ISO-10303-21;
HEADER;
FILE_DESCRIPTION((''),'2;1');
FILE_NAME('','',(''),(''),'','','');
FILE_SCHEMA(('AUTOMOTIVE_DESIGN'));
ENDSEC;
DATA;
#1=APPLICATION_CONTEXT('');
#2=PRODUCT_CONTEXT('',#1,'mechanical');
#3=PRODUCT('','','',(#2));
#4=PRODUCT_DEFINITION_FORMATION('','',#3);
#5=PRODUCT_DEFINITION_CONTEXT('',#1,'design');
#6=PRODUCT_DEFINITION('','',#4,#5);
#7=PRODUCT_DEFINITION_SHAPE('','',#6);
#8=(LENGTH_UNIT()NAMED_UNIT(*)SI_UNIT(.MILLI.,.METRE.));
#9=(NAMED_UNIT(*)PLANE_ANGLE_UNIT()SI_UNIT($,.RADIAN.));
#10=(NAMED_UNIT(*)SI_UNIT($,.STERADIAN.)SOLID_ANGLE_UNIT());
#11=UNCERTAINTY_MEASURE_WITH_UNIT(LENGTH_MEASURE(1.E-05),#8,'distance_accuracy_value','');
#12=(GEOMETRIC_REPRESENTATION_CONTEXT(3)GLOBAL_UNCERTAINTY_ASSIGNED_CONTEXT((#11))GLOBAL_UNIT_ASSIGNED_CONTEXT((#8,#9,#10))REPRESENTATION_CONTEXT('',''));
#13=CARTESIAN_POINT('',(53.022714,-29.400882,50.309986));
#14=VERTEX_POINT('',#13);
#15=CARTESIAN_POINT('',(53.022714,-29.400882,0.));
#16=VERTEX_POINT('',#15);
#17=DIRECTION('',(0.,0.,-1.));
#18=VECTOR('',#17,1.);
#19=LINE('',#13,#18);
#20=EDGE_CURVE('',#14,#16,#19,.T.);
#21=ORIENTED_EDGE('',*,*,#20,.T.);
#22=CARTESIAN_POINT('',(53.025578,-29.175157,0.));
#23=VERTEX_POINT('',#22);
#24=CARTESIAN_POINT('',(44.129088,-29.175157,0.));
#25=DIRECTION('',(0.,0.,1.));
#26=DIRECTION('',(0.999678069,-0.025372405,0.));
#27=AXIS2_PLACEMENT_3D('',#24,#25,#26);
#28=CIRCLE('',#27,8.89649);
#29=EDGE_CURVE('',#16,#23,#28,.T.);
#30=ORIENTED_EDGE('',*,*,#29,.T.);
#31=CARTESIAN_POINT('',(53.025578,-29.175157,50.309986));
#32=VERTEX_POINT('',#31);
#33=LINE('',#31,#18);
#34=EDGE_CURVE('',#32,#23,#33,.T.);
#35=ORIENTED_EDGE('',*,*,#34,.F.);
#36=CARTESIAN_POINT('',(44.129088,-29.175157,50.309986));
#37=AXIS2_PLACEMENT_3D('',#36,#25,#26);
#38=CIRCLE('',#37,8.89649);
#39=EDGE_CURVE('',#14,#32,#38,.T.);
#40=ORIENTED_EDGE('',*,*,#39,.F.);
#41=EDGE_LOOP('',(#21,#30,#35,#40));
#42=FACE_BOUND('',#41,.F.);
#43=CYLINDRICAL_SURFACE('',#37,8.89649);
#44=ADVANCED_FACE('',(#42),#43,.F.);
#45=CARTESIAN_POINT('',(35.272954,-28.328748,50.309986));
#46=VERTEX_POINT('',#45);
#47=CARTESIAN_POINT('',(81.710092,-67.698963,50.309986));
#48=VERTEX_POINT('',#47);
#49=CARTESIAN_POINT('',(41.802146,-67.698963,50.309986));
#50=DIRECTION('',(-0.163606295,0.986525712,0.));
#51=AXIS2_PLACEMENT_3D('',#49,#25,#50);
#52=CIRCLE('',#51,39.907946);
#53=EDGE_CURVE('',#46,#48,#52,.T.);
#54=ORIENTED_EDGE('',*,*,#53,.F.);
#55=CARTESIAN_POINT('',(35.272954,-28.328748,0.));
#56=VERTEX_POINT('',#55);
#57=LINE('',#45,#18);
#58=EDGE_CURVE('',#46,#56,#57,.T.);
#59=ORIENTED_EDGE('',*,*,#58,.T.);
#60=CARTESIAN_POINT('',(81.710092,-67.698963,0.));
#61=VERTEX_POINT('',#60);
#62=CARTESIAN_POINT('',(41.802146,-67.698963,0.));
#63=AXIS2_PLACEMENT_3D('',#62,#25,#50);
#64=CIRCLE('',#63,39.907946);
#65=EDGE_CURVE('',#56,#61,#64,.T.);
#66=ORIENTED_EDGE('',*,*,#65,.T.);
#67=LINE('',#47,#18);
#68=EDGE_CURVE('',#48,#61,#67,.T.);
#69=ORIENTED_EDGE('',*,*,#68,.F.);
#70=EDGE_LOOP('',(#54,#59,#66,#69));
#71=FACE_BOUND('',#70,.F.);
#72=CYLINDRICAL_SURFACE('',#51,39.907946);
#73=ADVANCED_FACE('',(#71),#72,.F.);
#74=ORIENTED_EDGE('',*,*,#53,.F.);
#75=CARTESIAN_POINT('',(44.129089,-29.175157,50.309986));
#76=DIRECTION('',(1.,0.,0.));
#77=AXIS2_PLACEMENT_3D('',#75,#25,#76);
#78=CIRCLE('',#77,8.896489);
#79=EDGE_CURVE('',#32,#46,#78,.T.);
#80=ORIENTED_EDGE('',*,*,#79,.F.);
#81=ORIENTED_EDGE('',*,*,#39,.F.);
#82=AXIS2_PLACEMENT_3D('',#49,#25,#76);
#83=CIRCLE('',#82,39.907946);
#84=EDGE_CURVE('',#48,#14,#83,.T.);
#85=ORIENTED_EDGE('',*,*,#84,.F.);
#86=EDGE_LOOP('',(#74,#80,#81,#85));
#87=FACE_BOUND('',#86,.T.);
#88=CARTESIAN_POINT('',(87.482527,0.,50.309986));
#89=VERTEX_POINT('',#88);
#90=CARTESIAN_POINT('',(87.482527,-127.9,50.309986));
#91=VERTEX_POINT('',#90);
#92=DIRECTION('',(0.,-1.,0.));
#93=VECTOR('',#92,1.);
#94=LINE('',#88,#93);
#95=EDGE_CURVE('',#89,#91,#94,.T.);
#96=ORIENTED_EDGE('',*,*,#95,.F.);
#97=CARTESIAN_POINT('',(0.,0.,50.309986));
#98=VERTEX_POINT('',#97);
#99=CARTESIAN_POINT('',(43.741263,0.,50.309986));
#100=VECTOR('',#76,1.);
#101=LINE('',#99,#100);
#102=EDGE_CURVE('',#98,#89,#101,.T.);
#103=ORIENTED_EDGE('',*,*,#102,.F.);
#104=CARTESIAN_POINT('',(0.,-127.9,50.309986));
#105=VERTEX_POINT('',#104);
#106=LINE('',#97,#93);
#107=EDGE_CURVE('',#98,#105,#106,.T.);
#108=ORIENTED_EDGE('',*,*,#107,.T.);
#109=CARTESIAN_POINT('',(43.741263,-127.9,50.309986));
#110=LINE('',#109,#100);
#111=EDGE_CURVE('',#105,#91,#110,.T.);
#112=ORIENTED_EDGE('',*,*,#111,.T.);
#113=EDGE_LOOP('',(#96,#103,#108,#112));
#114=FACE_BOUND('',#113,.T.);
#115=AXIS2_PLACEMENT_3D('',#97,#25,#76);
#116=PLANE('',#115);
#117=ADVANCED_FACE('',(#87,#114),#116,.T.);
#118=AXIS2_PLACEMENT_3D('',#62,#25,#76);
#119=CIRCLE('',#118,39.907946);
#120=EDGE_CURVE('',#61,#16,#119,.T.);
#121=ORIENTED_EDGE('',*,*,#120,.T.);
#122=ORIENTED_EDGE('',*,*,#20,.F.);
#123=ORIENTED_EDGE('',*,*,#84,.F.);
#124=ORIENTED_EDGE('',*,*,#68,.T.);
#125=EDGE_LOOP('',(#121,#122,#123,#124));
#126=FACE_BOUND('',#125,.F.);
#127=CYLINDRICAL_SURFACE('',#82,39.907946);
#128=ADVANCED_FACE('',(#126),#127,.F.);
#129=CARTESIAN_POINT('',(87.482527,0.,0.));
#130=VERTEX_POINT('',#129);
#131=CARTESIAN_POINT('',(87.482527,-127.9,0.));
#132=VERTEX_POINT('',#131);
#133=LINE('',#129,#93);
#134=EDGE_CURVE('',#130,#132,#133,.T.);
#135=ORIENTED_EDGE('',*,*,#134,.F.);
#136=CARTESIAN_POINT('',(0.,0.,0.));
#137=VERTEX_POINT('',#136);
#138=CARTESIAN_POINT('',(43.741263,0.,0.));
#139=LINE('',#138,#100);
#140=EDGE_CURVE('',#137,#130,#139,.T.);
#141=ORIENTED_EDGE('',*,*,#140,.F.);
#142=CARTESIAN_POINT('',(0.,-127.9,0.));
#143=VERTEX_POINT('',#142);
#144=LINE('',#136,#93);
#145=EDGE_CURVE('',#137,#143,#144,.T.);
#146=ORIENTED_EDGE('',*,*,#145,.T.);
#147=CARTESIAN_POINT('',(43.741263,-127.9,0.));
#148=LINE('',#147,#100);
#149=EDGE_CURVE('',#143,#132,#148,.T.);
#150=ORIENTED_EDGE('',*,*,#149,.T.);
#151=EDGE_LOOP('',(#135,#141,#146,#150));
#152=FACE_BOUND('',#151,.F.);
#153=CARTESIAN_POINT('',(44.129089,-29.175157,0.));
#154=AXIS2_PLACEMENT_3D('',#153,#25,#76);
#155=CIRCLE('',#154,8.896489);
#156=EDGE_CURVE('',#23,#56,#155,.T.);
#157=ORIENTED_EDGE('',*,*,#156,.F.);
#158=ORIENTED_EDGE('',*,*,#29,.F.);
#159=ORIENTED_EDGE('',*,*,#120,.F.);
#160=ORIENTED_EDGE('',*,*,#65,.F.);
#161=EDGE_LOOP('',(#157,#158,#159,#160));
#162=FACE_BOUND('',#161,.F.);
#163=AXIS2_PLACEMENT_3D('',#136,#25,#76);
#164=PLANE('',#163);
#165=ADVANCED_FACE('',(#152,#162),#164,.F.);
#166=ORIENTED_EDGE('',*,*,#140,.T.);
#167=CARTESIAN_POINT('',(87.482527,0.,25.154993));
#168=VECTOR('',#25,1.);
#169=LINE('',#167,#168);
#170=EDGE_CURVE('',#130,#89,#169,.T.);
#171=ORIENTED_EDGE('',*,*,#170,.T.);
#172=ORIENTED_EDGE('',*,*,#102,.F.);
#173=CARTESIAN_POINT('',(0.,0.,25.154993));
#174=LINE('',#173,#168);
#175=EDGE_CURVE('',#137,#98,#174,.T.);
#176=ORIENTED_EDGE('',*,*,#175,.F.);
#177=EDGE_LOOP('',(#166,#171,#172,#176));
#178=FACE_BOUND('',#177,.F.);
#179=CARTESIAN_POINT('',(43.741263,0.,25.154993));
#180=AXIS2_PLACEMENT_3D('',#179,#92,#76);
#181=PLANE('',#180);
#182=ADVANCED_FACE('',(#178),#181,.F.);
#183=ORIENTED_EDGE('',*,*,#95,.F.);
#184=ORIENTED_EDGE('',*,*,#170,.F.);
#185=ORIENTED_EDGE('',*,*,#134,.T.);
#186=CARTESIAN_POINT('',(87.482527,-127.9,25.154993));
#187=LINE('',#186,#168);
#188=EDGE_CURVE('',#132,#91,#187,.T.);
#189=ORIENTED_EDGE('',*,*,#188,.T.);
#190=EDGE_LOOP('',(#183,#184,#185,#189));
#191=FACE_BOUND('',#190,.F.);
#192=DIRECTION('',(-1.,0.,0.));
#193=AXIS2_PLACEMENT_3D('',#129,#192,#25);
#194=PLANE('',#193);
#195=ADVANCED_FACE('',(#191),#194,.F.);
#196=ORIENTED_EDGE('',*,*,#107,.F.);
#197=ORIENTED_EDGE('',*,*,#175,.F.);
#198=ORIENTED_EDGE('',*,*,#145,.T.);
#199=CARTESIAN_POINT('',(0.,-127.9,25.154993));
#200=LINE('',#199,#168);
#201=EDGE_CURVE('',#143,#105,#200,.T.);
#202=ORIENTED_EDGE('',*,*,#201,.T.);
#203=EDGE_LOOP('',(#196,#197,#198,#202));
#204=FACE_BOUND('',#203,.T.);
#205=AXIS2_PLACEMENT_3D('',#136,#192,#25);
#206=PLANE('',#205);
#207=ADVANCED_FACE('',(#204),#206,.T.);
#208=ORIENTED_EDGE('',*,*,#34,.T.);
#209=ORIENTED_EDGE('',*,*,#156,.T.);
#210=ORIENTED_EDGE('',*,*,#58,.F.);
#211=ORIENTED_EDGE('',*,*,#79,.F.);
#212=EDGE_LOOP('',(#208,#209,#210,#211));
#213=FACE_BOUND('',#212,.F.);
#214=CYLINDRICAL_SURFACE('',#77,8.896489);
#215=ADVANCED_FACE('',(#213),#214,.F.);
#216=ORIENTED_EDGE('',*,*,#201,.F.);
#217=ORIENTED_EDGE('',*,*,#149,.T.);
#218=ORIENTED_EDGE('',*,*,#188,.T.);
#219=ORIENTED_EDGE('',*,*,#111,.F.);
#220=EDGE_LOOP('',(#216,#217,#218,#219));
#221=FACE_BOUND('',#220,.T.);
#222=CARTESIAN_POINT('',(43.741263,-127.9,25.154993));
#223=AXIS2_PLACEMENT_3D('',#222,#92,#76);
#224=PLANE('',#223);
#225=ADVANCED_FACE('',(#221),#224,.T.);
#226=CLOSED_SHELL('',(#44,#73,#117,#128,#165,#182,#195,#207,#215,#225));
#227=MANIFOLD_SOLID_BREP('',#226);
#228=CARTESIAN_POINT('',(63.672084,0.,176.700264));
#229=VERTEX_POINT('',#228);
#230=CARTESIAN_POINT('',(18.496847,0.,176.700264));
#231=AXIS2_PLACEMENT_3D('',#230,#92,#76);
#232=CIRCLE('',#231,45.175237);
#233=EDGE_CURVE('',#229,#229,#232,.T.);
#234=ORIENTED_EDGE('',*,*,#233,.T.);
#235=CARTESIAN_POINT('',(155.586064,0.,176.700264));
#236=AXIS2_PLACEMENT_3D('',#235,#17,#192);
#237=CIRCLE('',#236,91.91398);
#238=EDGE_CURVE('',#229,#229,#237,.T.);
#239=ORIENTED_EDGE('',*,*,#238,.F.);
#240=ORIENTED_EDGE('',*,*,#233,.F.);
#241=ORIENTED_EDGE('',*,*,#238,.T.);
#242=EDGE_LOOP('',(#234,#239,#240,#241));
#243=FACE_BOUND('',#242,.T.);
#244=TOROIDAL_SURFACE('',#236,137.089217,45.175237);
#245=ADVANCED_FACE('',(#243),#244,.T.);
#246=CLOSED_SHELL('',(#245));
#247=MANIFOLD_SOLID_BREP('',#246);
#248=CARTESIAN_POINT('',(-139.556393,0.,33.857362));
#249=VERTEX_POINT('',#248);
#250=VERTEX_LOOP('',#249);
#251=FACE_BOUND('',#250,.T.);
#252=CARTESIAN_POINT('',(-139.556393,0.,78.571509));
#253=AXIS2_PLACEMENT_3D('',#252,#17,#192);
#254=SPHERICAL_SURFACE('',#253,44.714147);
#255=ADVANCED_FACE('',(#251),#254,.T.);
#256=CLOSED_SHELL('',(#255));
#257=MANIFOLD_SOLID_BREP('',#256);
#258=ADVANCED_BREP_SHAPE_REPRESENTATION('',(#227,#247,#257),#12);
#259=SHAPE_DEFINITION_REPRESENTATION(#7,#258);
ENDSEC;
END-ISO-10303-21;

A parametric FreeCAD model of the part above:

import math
import FreeCAD as App
import Part
import Sketcher

doc = App.newDocument("Part")
body = doc.addObject("PartDesign::Body", "Body")

sketch1 = body.newObject("Sketcher::SketchObject", "Sketch")
sketch1.AttachmentSupport = (doc.getObject("XZ_Plane"), [""])
sketch1.MapMode = "FlatFace"
sketch1.addGeometry(Part.LineSegment(App.Vector(0, 50.309986, 0), App.Vector(0, 0, 0)), False)
sketch1.addGeometry(Part.LineSegment(App.Vector(0, 0, 0), App.Vector(87.482527, 0, 0)), False)
sketch1.addGeometry(Part.LineSegment(App.Vector(87.482527, 0, 0), App.Vector(87.482527, 50.309986, 0)), False)
sketch1.addGeometry(Part.LineSegment(App.Vector(87.482527, 50.309986, 0), App.Vector(0, 50.309986, 0)), False)
sketch1.addConstraint(Sketcher.Constraint("Coincident", 0, 2, 1, 1))
sketch1.addConstraint(Sketcher.Constraint("Coincident", 1, 2, 2, 1))
sketch1.addConstraint(Sketcher.Constraint("Coincident", 2, 2, 3, 1))
sketch1.addConstraint(Sketcher.Constraint("Coincident", 3, 2, 0, 1))
sketch1.addConstraint(Sketcher.Constraint("Vertical", 0))
sketch1.addConstraint(Sketcher.Constraint("Horizontal", 1))
sketch1.addConstraint(Sketcher.Constraint("Vertical", 2))
sketch1.addConstraint(Sketcher.Constraint("Horizontal", 3))
sketch1.addConstraint(Sketcher.Constraint("Coincident", 0, 2, -1, 1))
sketch1.addConstraint(Sketcher.Constraint("DistanceX", 1, 1, 1, 2, 87.482527))
sketch1.addConstraint(Sketcher.Constraint("DistanceY", 0, 2, 0, 1, 50.309986))
pad1 = body.newObject("PartDesign::Pad", "Pad")
pad1.Profile = sketch1
pad1.Length = 127.9

sketch2 = body.newObject("Sketcher::SketchObject", "Sketch001")
sketch2.AttachmentSupport = (doc.getObject("XY_Plane"), [""])
sketch2.MapMode = "FlatFace"
sketch2.AttachmentOffset = App.Placement(App.Vector(0, 0, 50.309986), App.Rotation())
sketch2.addGeometry(Part.ArcOfCircle(Part.Circle(App.Vector(44.129088, -29.175157, 0), App.Vector(0, 0, 1), 8.89649), math.radians(-1.453888), math.radians(0)), False)
sketch2.addGeometry(Part.ArcOfCircle(Part.Circle(App.Vector(44.129089, -29.175157, 0), App.Vector(0, 0, 1), 8.896489), math.radians(0), math.radians(174.540645)), False)
sketch2.addGeometry(Part.ArcOfCircle(Part.Circle(App.Vector(41.802146, -67.698963, 0), App.Vector(0, 0, 1), 39.907946), math.radians(99.416281), math.radians(360)), False)
sketch2.addGeometry(Part.ArcOfCircle(Part.Circle(App.Vector(41.802146, -67.698963, 0), App.Vector(0, 0, 1), 39.907946), math.radians(0), math.radians(73.670476)), False)
sketch2.addConstraint(Sketcher.Constraint("Tangent", 0, 2, 1, 1))
sketch2.addConstraint(Sketcher.Constraint("Coincident", 1, 2, 2, 1))
sketch2.addConstraint(Sketcher.Constraint("Tangent", 2, 2, 3, 1))
sketch2.addConstraint(Sketcher.Constraint("Coincident", 3, 2, 0, 1))
sketch2.addConstraint(Sketcher.Constraint("Equal", 0, 1))
sketch2.addConstraint(Sketcher.Constraint("Equal", 2, 3))
sketch2.addConstraint(Sketcher.Constraint("Horizontal", 1, 3, 0, 2))
sketch2.addConstraint(Sketcher.Constraint("Horizontal", 3, 3, 2, 2))
sketch2.addConstraint(Sketcher.Constraint("Radius", 0, 8.89649))
sketch2.addConstraint(Sketcher.Constraint("Radius", 2, 39.907946))
sketch2.addConstraint(Sketcher.Constraint("DistanceX", -1, 1, 1, 3, 44.129089))
sketch2.addConstraint(Sketcher.Constraint("DistanceY", 1, 2, -1, 1, 28.328748))
sketch2.addConstraint(Sketcher.Constraint("DistanceX", -1, 1, 2, 2, 81.710092))
sketch2.addConstraint(Sketcher.Constraint("DistanceY", 0, 3, 1, 2, 0.846409))
pocket1 = body.newObject("PartDesign::Pocket", "Pocket")
pocket1.Profile = sketch2
pocket1.Length = 83.7
body2 = doc.addObject("PartDesign::Body", "Body001")

sketch3 = body2.newObject("Sketcher::SketchObject", "Sketch002")
sketch3.AttachmentSupport = (doc.getObject("XZ_Plane001"), [""])
sketch3.MapMode = "FlatFace"
sketch3.addGeometry(Part.LineSegment(App.Vector(-139.556393, 33.857362, 0), App.Vector(-139.556393, 123.285655, 0)), False)
sketch3.addGeometry(Part.ArcOfCircle(Part.Circle(App.Vector(-139.556393, 78.571509, 0), App.Vector(0, 0, 1), 44.714147), math.radians(90), math.radians(270)), False)
sketch3.addGeometry(Part.LineSegment(App.Vector(-139.556393, 123.285655, 0), App.Vector(-139.556393, 33.857362, 0)), True)
sketch3.addConstraint(Sketcher.Constraint("Coincident", 0, 1, 1, 2))
sketch3.addConstraint(Sketcher.Constraint("Coincident", 1, 1, 0, 2))
sketch3.addConstraint(Sketcher.Constraint("Vertical", 0))
sketch3.addConstraint(Sketcher.Constraint("Vertical", 2))
sketch3.addConstraint(Sketcher.Constraint("Coincident", 2, 1, 1, 1))
sketch3.addConstraint(Sketcher.Constraint("Vertical", 1, 3, 0, 1))
sketch3.addConstraint(Sketcher.Constraint("Equal", 0, 2))
sketch3.addConstraint(Sketcher.Constraint("Radius", 1, 44.714147))
sketch3.addConstraint(Sketcher.Constraint("DistanceY", -1, 1, 1, 3, 78.571509))
sketch3.addConstraint(Sketcher.Constraint("DistanceX", 1, 3, -1, 1, 139.556393))
revolution = body2.newObject("PartDesign::Revolution", "Revolution")
revolution.Profile = sketch3
revolution.ReferenceAxis = (sketch3, ["Axis0"])
revolution.Angle = 360
body3 = doc.addObject("PartDesign::Body", "Body002")

sketch4 = body3.newObject("Sketcher::SketchObject", "Sketch003")
sketch4.AttachmentSupport = (doc.getObject("XZ_Plane002"), [""])
sketch4.MapMode = "FlatFace"
sketch4.addGeometry(Part.Circle(App.Vector(18.496847, 176.700264, 0), App.Vector(0, 0, 1), 45.175237), False)
sketch4.addGeometry(Part.LineSegment(App.Vector(155.586064, 176.700264, 0), App.Vector(155.586064, 166.700264, 0)), True)
sketch4.addConstraint(Sketcher.Constraint("Vertical", 1))
sketch4.addConstraint(Sketcher.Constraint("Horizontal", 0, 3, 1, 1))
sketch4.addConstraint(Sketcher.Constraint("DistanceY", 1, 2, 1, 1, 10.0))
sketch4.addConstraint(Sketcher.Constraint("Diameter", 0, 90.350474))
sketch4.addConstraint(Sketcher.Constraint("DistanceX", -1, 1, 0, 3, 18.496847))
sketch4.addConstraint(Sketcher.Constraint("DistanceY", -1, 1, 0, 3, 176.700264))
sketch4.addConstraint(Sketcher.Constraint("DistanceX", -1, 1, 1, 1, 155.586064))
revolution2 = body3.newObject("PartDesign::Revolution", "Revolution001")
revolution2.Profile = sketch4
revolution2.ReferenceAxis = (sketch4, ["Axis0"])
revolution2.Angle = 360

doc.recompute()
